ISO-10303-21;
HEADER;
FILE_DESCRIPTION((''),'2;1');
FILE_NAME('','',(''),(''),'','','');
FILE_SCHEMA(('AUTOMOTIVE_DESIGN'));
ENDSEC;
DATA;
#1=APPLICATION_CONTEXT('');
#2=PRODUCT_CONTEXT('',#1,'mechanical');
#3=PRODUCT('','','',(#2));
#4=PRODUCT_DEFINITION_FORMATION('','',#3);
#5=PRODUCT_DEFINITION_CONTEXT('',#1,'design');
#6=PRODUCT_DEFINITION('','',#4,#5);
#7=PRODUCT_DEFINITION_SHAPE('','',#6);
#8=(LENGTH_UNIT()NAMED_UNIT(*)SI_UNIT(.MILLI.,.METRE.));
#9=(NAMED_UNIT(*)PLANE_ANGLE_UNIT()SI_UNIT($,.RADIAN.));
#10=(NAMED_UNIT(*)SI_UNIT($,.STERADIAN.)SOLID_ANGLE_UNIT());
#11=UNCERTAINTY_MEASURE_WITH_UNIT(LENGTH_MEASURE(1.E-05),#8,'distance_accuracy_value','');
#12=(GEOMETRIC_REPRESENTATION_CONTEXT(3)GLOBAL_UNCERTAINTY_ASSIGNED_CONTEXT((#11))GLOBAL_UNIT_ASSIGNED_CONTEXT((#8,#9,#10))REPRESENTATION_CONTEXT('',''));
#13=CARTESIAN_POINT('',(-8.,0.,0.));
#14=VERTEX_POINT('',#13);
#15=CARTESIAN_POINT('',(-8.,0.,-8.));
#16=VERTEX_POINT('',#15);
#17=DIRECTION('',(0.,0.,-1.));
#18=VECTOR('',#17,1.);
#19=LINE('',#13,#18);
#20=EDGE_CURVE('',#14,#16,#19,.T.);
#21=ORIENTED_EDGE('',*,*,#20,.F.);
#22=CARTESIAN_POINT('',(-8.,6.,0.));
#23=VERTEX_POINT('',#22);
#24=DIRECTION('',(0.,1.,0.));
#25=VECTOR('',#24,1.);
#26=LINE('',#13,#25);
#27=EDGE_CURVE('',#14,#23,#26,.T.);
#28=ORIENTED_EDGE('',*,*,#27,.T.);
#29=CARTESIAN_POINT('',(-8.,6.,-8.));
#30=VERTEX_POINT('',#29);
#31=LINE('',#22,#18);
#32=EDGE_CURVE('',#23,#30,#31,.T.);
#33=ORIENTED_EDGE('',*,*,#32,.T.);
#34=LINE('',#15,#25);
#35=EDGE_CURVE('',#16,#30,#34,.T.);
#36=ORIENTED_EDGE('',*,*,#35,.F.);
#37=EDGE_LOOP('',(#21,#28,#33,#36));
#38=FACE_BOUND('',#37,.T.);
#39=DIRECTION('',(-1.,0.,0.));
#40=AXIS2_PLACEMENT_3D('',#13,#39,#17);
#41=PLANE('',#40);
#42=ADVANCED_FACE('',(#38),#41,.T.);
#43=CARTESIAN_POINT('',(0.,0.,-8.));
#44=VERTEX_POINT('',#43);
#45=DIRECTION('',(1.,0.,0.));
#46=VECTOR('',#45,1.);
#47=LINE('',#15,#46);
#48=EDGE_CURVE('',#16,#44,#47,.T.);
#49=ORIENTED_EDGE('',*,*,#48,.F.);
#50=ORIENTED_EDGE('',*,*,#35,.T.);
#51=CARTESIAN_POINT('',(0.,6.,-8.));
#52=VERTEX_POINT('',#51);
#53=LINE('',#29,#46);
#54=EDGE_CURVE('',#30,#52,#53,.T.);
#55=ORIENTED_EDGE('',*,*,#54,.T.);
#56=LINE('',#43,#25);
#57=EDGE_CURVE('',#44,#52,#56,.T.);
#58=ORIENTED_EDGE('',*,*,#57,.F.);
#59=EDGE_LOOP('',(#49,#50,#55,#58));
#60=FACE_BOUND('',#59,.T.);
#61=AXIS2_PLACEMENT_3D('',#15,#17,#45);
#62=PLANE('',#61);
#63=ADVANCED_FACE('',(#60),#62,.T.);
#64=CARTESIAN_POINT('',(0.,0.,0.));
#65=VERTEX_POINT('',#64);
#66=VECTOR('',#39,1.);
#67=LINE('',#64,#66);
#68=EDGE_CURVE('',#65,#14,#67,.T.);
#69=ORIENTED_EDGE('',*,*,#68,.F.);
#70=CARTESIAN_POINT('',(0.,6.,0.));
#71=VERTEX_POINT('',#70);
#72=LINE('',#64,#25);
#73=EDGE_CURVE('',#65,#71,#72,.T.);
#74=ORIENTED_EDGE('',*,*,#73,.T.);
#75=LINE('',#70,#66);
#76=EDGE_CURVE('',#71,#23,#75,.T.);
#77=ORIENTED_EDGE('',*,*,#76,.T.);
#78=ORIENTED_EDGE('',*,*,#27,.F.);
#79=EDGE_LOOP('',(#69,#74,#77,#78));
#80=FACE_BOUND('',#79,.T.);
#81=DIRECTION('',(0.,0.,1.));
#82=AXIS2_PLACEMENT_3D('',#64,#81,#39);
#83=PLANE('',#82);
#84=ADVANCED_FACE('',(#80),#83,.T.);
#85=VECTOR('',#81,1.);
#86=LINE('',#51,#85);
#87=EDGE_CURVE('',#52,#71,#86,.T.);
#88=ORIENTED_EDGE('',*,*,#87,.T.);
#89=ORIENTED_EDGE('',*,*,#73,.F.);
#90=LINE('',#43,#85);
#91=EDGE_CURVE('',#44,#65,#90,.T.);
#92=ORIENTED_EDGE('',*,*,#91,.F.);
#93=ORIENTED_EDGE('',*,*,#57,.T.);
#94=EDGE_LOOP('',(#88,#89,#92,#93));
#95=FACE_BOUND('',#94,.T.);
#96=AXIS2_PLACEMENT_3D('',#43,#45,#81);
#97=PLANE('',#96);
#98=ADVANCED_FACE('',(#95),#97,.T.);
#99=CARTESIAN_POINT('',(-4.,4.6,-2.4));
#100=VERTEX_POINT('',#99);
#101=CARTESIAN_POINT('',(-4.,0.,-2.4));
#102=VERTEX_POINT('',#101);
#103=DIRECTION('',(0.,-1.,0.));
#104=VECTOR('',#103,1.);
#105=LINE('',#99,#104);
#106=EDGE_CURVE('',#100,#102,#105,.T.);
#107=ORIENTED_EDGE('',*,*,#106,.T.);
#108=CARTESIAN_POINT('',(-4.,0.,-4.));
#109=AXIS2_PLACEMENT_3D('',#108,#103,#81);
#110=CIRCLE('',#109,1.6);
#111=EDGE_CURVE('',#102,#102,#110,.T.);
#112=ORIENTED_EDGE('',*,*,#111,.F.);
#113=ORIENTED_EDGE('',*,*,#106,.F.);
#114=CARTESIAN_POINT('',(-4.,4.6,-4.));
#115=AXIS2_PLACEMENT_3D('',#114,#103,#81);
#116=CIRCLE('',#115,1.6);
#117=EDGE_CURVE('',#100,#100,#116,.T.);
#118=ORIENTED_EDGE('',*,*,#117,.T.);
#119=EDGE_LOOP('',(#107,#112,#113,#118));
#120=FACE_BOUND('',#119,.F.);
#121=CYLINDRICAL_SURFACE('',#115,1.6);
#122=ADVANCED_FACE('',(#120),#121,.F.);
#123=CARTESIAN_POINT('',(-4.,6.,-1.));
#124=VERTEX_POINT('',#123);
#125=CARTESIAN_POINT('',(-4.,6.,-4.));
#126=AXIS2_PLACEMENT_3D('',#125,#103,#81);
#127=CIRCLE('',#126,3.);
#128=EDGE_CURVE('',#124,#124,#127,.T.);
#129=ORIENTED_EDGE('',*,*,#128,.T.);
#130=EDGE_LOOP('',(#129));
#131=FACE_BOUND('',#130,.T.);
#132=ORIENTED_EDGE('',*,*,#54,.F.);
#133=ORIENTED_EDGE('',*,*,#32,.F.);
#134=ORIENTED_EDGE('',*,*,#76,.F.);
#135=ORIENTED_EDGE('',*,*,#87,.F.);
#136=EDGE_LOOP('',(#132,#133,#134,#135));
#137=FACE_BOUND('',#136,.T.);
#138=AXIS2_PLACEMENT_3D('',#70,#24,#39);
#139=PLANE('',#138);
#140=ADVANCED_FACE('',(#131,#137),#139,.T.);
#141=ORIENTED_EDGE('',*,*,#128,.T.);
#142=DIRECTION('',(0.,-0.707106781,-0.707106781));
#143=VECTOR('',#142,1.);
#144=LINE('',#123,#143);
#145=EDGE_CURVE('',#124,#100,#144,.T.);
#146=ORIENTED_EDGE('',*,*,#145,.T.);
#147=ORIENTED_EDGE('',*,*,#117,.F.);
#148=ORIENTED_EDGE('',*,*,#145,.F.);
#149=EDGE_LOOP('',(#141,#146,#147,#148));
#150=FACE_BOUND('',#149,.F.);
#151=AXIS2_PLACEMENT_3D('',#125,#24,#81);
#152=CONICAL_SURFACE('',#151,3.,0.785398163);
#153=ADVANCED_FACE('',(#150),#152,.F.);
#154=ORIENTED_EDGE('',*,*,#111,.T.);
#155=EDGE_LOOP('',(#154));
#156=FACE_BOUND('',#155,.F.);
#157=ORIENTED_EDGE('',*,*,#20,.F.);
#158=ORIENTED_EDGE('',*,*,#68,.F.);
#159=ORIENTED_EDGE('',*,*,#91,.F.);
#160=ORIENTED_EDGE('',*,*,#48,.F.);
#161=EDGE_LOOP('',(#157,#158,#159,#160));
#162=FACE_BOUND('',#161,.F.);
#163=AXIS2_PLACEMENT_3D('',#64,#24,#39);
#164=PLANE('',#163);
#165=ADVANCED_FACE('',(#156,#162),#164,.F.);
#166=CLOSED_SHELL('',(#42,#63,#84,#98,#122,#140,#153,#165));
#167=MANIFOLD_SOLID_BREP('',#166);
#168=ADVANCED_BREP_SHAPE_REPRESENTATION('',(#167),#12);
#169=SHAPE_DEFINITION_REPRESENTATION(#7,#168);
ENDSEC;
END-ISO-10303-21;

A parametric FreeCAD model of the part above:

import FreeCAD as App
import Part
import Sketcher
Q = App.Units.Quantity

doc = App.newDocument("Part")
body = doc.addObject("PartDesign::Body", "Body")

# Sketch on XZ plane
sketch1 = doc.addObject("Sketcher::SketchObject", "Sketch")
body.addObject(sketch1)
sketch1.AttachmentSupport = (doc.XZ_Plane, [""])
sketch1.MapMode = "FlatFace"
sketch1.addGeometry(Part.LineSegment(App.Vector(-8, 0, 0), App.Vector(0, 0, 0)), False)
sketch1.addGeometry(Part.LineSegment(App.Vector(0, 0, 0), App.Vector(0, -8, 0)), False)
sketch1.addGeometry(Part.LineSegment(App.Vector(0, -8, 0), App.Vector(-8, -8, 0)), False)
sketch1.addGeometry(Part.LineSegment(App.Vector(-8, -8, 0), App.Vector(-8, 0, 0)), False)
sketch1.addConstraint(Sketcher.Constraint("Coincident", 0, 2, 1, 1))
sketch1.addConstraint(Sketcher.Constraint("Coincident", 1, 2, 2, 1))
sketch1.addConstraint(Sketcher.Constraint("Coincident", 2, 2, 3, 1))
sketch1.addConstraint(Sketcher.Constraint("Coincident", 3, 2, 0, 1))
sketch1.addConstraint(Sketcher.Constraint("Horizontal", 0))
sketch1.addConstraint(Sketcher.Constraint("Vertical", 1))
sketch1.addConstraint(Sketcher.Constraint("Horizontal", 2))
sketch1.addConstraint(Sketcher.Constraint("Vertical", 3))
sketch1.addConstraint(Sketcher.Constraint("Coincident", 0, 2, -1, 1))
sketch1.addConstraint(Sketcher.Constraint("Equal", 2, 1))
sketch1.addConstraint(Sketcher.Constraint("DistanceX", 0, 1, 0, 2, Q("8 mm")))
pad1 = doc.addObject("PartDesign::Pad", "Pad")
body.addObject(pad1)
pad1.Profile = sketch1
pad1.Length = 6
pad1.Reversed = True

# Sketch on XZ plane
sketch2 = doc.addObject("Sketcher::SketchObject", "Sketch001")
body.addObject(sketch2)
sketch2.AttachmentSupport = (doc.XZ_Plane, [""])
sketch2.MapMode = "FlatFace"
sketch2.AttachmentOffset = App.Placement(App.Vector(0, 0, -6), App.Rotation())
sketch2.addGeometry(Part.Circle(App.Vector(-4, -4, 0), App.Vector(0, 0, 1), 1.6), False)
sketch2.addConstraint(Sketcher.Constraint("Diameter", 0, Q("3.2 mm")))
sketch2.addConstraint(Sketcher.Constraint("DistanceX", 0, 3, -1, 1, Q("4 mm")))
sketch2.addConstraint(Sketcher.Constraint("DistanceY", 0, 3, -1, 1, Q("4 mm")))
doc.recompute()
hole = doc.addObject("PartDesign::Hole", "Hole")
body.addObject(hole)
hole.Profile = sketch2
hole.ThreadType = "None"
hole.Diameter = 3.2
hole.DepthType = "ThroughAll"
hole.HoleCutType = "Countersink"
hole.HoleCutDiameter = 6
hole.HoleCutCountersinkAngle = 90
hole.Reversed = True

doc.recompute()
